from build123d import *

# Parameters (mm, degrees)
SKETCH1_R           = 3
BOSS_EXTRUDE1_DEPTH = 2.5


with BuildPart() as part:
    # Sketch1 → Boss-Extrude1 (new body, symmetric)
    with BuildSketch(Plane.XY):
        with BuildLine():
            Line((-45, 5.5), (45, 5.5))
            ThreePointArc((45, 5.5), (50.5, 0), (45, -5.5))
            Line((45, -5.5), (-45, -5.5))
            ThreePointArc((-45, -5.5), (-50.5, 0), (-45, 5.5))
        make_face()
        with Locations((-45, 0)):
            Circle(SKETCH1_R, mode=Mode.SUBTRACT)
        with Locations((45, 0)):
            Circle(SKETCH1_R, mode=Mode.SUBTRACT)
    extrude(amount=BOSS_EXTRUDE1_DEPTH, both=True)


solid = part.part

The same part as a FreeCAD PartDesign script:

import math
import FreeCAD as App
import Part
import Sketcher
Q = App.Units.Quantity

doc = App.newDocument("Part")
body = doc.addObject("PartDesign::Body", "Body")

# Sketch on XY plane
sketch1 = body.newObject("Sketcher::SketchObject", "Sketch")
sketch1.AttachmentSupport = (doc.getObject("XY_Plane"), [""])
sketch1.MapMode = "FlatFace"
sketch1.addGeometry(Part.LineSegment(App.Vector(45, 5.5, 0), App.Vector(-45, 5.5, 0)), False)
sketch1.addGeometry(Part.ArcOfCircle(Part.Circle(App.Vector(-45, 0, 0), App.Vector(0, 0, 1), 5.5), math.radians(90), math.radians(270)), False)
sketch1.addGeometry(Part.LineSegment(App.Vector(-45, -5.5, 0), App.Vector(45, -5.5, 0)), False)
sketch1.addGeometry(Part.ArcOfCircle(Part.Circle(App.Vector(45, 0, 0), App.Vector(0, 0, 1), 5.5), math.radians(-90), math.radians(90)), False)
sketch1.addGeometry(Part.Circle(App.Vector(45, 0, 0), App.Vector(0, 0, 1), 3), False)
sketch1.addGeometry(Part.Circle(App.Vector(-45, 0, 0), App.Vector(0, 0, 1), 3), False)
sketch1.addConstraint(Sketcher.Constraint("Tangent", 0, 2, 1, 1))
sketch1.addConstraint(Sketcher.Constraint("Tangent", 1, 2, 2, 1))
sketch1.addConstraint(Sketcher.Constraint("Tangent", 2, 2, 3, 1))
sketch1.addConstraint(Sketcher.Constraint("Tangent", 3, 2, 0, 1))
sketch1.addConstraint(Sketcher.Constraint("Horizontal", 0))
sketch1.addConstraint(Sketcher.Constraint("Horizontal", 2))
sketch1.addConstraint(Sketcher.Constraint("Coincident", 4, 3, 3, 3))
sketch1.addConstraint(Sketcher.Constraint("Coincident", 5, 3, 1, 3))
sketch1.addConstraint(Sketcher.Constraint("Equal", 4, 5))
sketch1.addConstraint(Sketcher.Constraint("Symmetric", 1, 3, 3, 3, -1, 1))
sketch1.addConstraint(Sketcher.Constraint("Diameter", 4, Q("6 mm")))
sketch1.addConstraint(Sketcher.Constraint("Radius", 1, Q("5.5 mm")))
sketch1.addConstraint(Sketcher.Constraint("DistanceX", 0, 2, 0, 1, Q("90 mm")))
pad1 = body.newObject("PartDesign::Pad", "Pad")
pad1.Profile = sketch1
pad1.Length = 5
pad1.Midplane = True

doc.recompute()
